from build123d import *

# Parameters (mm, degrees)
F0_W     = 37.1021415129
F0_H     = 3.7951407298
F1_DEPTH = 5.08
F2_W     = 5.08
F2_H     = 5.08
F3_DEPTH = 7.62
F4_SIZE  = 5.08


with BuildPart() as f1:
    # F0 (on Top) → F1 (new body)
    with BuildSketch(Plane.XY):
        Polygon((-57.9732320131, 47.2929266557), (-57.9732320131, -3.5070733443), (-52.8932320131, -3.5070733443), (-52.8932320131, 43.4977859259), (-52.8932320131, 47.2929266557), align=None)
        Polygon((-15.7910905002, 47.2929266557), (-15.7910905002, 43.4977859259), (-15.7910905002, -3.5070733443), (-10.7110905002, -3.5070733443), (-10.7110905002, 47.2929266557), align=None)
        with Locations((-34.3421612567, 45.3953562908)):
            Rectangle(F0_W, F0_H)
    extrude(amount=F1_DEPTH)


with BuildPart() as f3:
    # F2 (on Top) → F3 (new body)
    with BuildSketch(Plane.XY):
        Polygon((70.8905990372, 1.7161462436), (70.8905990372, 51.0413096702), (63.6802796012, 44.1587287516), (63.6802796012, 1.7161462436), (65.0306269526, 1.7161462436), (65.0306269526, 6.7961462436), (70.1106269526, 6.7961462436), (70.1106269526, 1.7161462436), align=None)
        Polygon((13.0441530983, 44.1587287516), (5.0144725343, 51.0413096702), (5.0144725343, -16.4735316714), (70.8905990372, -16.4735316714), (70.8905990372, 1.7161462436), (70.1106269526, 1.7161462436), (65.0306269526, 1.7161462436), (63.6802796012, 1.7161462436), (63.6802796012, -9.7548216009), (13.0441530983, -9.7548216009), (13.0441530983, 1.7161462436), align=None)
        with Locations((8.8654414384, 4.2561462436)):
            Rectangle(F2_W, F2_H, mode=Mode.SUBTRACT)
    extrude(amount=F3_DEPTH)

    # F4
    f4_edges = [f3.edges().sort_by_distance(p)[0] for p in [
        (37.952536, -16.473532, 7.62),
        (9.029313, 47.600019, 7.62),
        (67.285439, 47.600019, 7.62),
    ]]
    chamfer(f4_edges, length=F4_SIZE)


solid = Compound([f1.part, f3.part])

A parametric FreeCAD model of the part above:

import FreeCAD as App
import Part
import Sketcher
Q = App.Units.Quantity


def edges_at(feature, points):
    """Names of the edges that pass closest to the given points."""
    edges = feature.Shape.Edges
    near = lambda p: min(range(len(edges)), key=lambda i: edges[i].distToShape(Part.Vertex(*p))[0])
    return sorted({f"Edge{near(p) + 1}" for p in points})


def add_polygon(sketch, points):
    """Adds a closed chain of lines whose ends are joined by coincident constraints."""
    first, n = sketch.GeometryCount, len(points)
    for a, b in zip(points, points[1:] + points[:1]):
        sketch.addGeometry(Part.LineSegment(App.Vector(*a, 0), App.Vector(*b, 0)), False)
    for i in range(n):
        sketch.addConstraint(Sketcher.Constraint("Coincident", first + i, 2, first + (i + 1) % n, 1))

doc = App.newDocument("Part")
body = doc.addObject("PartDesign::Body", "Body")

# Sketch on XY plane
sketch1 = doc.addObject("Sketcher::SketchObject", "Sketch")
body.addObject(sketch1)
sketch1.AttachmentSupport = (doc.XY_Plane, [""])
sketch1.MapMode = "FlatFace"
add_polygon(sketch1, [(-58, 47), (-58, -4), (-53, -4), (-53, 43), (-16, 43), (-16, -4), (-11, -4), (-11, 47)])  # lines 0-7
sketch1.addConstraint(Sketcher.Constraint("Vertical", 0))
sketch1.addConstraint(Sketcher.Constraint("Horizontal", 1))
sketch1.addConstraint(Sketcher.Constraint("Vertical", 2))
sketch1.addConstraint(Sketcher.Constraint("Horizontal", 3))
sketch1.addConstraint(Sketcher.Constraint("Vertical", 4))
sketch1.addConstraint(Sketcher.Constraint("Horizontal", 5))
sketch1.addConstraint(Sketcher.Constraint("Vertical", 6))
sketch1.addConstraint(Sketcher.Constraint("Horizontal", 7))
sketch1.addConstraint(Sketcher.Constraint("Horizontal", 1, 2, 4, 2))
sketch1.addConstraint(Sketcher.Constraint("Equal", 1, 5))
sketch1.addConstraint(Sketcher.Constraint("DistanceY", 0, 2, 0, 1, Q("2 in")))
sketch1.addConstraint(Sketcher.Constraint("DistanceX", 1, 1, 1, 2, Q("0.2 in")))
sketch1.addConstraint(Sketcher.Constraint("DistanceX", 3, 1, 3, 2, 37.102142))
sketch1.addConstraint(Sketcher.Constraint("DistanceY", 2, 1, 2, 2, 47.004859))
sketch1.addConstraint(Sketcher.Constraint("DistanceX", 3, 2, -1, 1, 15.79109))
sketch1.addConstraint(Sketcher.Constraint("DistanceY", 0, 2, -1, 1, 3.507073))
pad1 = doc.addObject("PartDesign::Pad", "Pad")
body.addObject(pad1)
pad1.Profile = sketch1
pad1.Length = Q("0.2 in")
body2 = doc.addObject("PartDesign::Body", "Body001")

# Sketch on XY plane
sketch2 = doc.addObject("Sketcher::SketchObject", "Sketch001")
body2.addObject(sketch2)
sketch2.AttachmentSupport = (doc.getObject("XY_Plane001"), [""])
sketch2.MapMode = "FlatFace"
add_polygon(sketch2, [(71, 51), (64, 44), (64, -10), (13, -10), (13, 44), (5, 51), (5, -16), (71, -16)])  # lines 0-7
add_polygon(sketch2, [(11, 2), (6, 2), (6, 7), (11, 7)])  # lines 8-11
add_polygon(sketch2, [(65, 2), (65, 7), (70, 7), (70, 2)])  # lines 12-15
sketch2.addConstraint(Sketcher.Constraint("Vertical", 1))
sketch2.addConstraint(Sketcher.Constraint("Horizontal", 2))
sketch2.addConstraint(Sketcher.Constraint("Vertical", 3))
sketch2.addConstraint(Sketcher.Constraint("Vertical", 5))
sketch2.addConstraint(Sketcher.Constraint("Horizontal", 6))
sketch2.addConstraint(Sketcher.Constraint("Vertical", 7))
sketch2.addConstraint(Sketcher.Constraint("Horizontal", 8))
sketch2.addConstraint(Sketcher.Constraint("Vertical", 9))
sketch2.addConstraint(Sketcher.Constraint("Horizontal", 10))
sketch2.addConstraint(Sketcher.Constraint("Vertical", 11))
sketch2.addConstraint(Sketcher.Constraint("Vertical", 12))
sketch2.addConstraint(Sketcher.Constraint("Horizontal", 13))
sketch2.addConstraint(Sketcher.Constraint("Vertical", 14))
sketch2.addConstraint(Sketcher.Constraint("Horizontal", 15))
sketch2.addConstraint(Sketcher.Constraint("Horizontal", 0, 2, 3, 2))
sketch2.addConstraint(Sketcher.Constraint("Horizontal", 4, 2, 7, 2))
sketch2.addConstraint(Sketcher.Constraint("Horizontal", 10, 2, 12, 2))
sketch2.addConstraint(Sketcher.Constraint("Horizontal", 11, 2, 14, 2))
sketch2.addConstraint(Sketcher.Constraint("Equal", 10, 13))
sketch2.addConstraint(Sketcher.Constraint("Equal", 15, 9))
sketch2.addConstraint(Sketcher.Constraint("DistanceX", 8, 2, 8, 1, Q("0.2 in")))
sketch2.addConstraint(Sketcher.Constraint("DistanceY", 1, 2, 1, 1, 53.91355))
sketch2.addConstraint(Sketcher.Constraint("DistanceY", 5, 2, 5, 1, 67.514841))
sketch2.addConstraint(Sketcher.Constraint("DistanceX", -1, 1, 6, 2, 70.890599))
sketch2.addConstraint(Sketcher.Constraint("Distance", 0, 9.96788))
sketch2.addConstraint(Sketcher.Constraint("DistanceX", 2, 2, 2, 1, 50.636127))
sketch2.addConstraint(Sketcher.Constraint("DistanceX", 6, 1, 6, 2, 65.876127))
sketch2.addConstraint(Sketcher.Constraint("DistanceX", -1, 1, 0, 2, 63.68028))
sketch2.addConstraint(Sketcher.Constraint("DistanceY", -1, 1, 0, 2, 44.158729))
sketch2.addConstraint(Sketcher.Constraint("DistanceX", -1, 1, 8, 2, 6.325441))
sketch2.addConstraint(Sketcher.Constraint("DistanceY", -1, 1, 8, 2, 1.716146))
sketch2.addConstraint(Sketcher.Constraint("DistanceX", -1, 1, 12, 2, 65.030627))
pad2 = doc.addObject("PartDesign::Pad", "Pad001")
body2.addObject(pad2)
pad2.Profile = sketch2
pad2.Length = Q("0.3 in")
doc.recompute()

chamfer = doc.addObject("PartDesign::Chamfer", "Chamfer")
body2.addObject(chamfer)
chamfer.Base = (pad2, edges_at(pad2, [(37.953, -16.474, 7.62), (9.029, 47.6, 7.62), (67.285, 47.6, 7.62)]))
chamfer.Size = Q("0.2 in")

doc.recompute()
